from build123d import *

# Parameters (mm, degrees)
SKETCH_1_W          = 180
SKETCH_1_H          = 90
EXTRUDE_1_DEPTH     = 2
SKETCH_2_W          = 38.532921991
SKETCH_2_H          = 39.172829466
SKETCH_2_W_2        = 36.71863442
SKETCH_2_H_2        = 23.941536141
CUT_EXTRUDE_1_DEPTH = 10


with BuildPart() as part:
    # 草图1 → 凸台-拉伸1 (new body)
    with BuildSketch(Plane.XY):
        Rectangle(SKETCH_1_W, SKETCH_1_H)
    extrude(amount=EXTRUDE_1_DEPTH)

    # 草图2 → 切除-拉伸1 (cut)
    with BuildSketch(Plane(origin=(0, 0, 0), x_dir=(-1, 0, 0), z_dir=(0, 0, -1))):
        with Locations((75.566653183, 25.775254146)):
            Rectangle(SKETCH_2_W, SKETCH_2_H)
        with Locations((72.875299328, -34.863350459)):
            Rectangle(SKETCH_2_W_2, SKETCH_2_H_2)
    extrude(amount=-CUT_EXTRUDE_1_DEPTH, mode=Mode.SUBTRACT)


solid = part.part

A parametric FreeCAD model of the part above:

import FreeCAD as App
import Part
import Sketcher

V = App.Vector

doc = App.newDocument("Part")
body = doc.addObject("PartDesign::Body", "Body")

sketch1 = body.newObject("Sketcher::SketchObject", "Sketch")
sketch1.AttachmentSupport = (doc.getObject("XY_Plane"), [""])
sketch1.MapMode = "FlatFace"
sketch1.addGeometry([
    Part.LineSegment(V(-90, 45, 0), V(-90, -45, 0)),
    Part.LineSegment(V(-90, -45, 0), V(90, -45, 0)),
    Part.LineSegment(V(90, -45, 0), V(90, 45, 0)),
    Part.LineSegment(V(90, 45, 0), V(-90, 45, 0)),
], False)
sketch1.addConstraint([
    Sketcher.Constraint("Coincident", 0, 2, 1, 1),
    Sketcher.Constraint("Coincident", 1, 2, 2, 1),
    Sketcher.Constraint("Coincident", 2, 2, 3, 1),
    Sketcher.Constraint("Coincident", 3, 2, 0, 1),
    Sketcher.Constraint("Vertical", 0),
    Sketcher.Constraint("Horizontal", 1),
    Sketcher.Constraint("Vertical", 2),
    Sketcher.Constraint("Horizontal", 3),
    Sketcher.Constraint("Symmetric", 0, 2, 2, 2, -1, 1),
    Sketcher.Constraint("DistanceX", 1, 1, 1, 2, 180.0),
    Sketcher.Constraint("DistanceY", 0, 2, 0, 1, 90.0),
])
pad1 = body.newObject("PartDesign::Pad", "Pad")
pad1.Profile = sketch1
pad1.Length = 2

sketch2 = body.newObject("Sketcher::SketchObject", "Sketch001")
sketch2.AttachmentSupport = (doc.getObject("XY_Plane"), [""])
sketch2.MapMode = "FlatFace"
sketch2.addGeometry([
    Part.LineSegment(V(-56, 45, 0), V(-56, 6, 0)),
    Part.LineSegment(V(-56, 6, 0), V(-95, 6, 0)),
    Part.LineSegment(V(-95, 6, 0), V(-95, 45, 0)),
    Part.LineSegment(V(-95, 45, 0), V(-56, 45, 0)),
    Part.LineSegment(V(-55, -23, 0), V(-55, -47, 0)),
    Part.LineSegment(V(-55, -47, 0), V(-91, -47, 0)),
    Part.LineSegment(V(-91, -47, 0), V(-91, -23, 0)),
    Part.LineSegment(V(-91, -23, 0), V(-55, -23, 0)),
], False)
sketch2.addConstraint([
    Sketcher.Constraint("Coincident", 0, 2, 1, 1),
    Sketcher.Constraint("Coincident", 1, 2, 2, 1),
    Sketcher.Constraint("Coincident", 2, 2, 3, 1),
    Sketcher.Constraint("Coincident", 3, 2, 0, 1),
    Sketcher.Constraint("Coincident", 4, 2, 5, 1),
    Sketcher.Constraint("Coincident", 5, 2, 6, 1),
    Sketcher.Constraint("Coincident", 6, 2, 7, 1),
    Sketcher.Constraint("Coincident", 7, 2, 4, 1),
    Sketcher.Constraint("Vertical", 0),
    Sketcher.Constraint("Horizontal", 1),
    Sketcher.Constraint("Vertical", 2),
    Sketcher.Constraint("Horizontal", 3),
    Sketcher.Constraint("Vertical", 4),
    Sketcher.Constraint("Horizontal", 5),
    Sketcher.Constraint("Vertical", 6),
    Sketcher.Constraint("Horizontal", 7),
    Sketcher.Constraint("DistanceX", 1, 2, 1, 1, 38.532922),
    Sketcher.Constraint("DistanceY", 0, 2, 0, 1, 39.172829),
    Sketcher.Constraint("DistanceX", 5, 2, 5, 1, 36.718634),
    Sketcher.Constraint("DistanceY", 4, 2, 4, 1, 23.941536),
    Sketcher.Constraint("DistanceY", -1, 1, 0, 2, 6.188839),
    Sketcher.Constraint("DistanceY", 4, 2, -1, 1, 46.834119),
    Sketcher.Constraint("DistanceX", 0, 2, 4, 2, 1.78421),
    Sketcher.Constraint("DistanceX", 0, 2, -1, 1, 56.300192),
])
pocket1 = body.newObject("PartDesign::Pocket", "Pocket")
pocket1.Profile = sketch2
pocket1.Length = 10
pocket1.Reversed = True

doc.recompute()
